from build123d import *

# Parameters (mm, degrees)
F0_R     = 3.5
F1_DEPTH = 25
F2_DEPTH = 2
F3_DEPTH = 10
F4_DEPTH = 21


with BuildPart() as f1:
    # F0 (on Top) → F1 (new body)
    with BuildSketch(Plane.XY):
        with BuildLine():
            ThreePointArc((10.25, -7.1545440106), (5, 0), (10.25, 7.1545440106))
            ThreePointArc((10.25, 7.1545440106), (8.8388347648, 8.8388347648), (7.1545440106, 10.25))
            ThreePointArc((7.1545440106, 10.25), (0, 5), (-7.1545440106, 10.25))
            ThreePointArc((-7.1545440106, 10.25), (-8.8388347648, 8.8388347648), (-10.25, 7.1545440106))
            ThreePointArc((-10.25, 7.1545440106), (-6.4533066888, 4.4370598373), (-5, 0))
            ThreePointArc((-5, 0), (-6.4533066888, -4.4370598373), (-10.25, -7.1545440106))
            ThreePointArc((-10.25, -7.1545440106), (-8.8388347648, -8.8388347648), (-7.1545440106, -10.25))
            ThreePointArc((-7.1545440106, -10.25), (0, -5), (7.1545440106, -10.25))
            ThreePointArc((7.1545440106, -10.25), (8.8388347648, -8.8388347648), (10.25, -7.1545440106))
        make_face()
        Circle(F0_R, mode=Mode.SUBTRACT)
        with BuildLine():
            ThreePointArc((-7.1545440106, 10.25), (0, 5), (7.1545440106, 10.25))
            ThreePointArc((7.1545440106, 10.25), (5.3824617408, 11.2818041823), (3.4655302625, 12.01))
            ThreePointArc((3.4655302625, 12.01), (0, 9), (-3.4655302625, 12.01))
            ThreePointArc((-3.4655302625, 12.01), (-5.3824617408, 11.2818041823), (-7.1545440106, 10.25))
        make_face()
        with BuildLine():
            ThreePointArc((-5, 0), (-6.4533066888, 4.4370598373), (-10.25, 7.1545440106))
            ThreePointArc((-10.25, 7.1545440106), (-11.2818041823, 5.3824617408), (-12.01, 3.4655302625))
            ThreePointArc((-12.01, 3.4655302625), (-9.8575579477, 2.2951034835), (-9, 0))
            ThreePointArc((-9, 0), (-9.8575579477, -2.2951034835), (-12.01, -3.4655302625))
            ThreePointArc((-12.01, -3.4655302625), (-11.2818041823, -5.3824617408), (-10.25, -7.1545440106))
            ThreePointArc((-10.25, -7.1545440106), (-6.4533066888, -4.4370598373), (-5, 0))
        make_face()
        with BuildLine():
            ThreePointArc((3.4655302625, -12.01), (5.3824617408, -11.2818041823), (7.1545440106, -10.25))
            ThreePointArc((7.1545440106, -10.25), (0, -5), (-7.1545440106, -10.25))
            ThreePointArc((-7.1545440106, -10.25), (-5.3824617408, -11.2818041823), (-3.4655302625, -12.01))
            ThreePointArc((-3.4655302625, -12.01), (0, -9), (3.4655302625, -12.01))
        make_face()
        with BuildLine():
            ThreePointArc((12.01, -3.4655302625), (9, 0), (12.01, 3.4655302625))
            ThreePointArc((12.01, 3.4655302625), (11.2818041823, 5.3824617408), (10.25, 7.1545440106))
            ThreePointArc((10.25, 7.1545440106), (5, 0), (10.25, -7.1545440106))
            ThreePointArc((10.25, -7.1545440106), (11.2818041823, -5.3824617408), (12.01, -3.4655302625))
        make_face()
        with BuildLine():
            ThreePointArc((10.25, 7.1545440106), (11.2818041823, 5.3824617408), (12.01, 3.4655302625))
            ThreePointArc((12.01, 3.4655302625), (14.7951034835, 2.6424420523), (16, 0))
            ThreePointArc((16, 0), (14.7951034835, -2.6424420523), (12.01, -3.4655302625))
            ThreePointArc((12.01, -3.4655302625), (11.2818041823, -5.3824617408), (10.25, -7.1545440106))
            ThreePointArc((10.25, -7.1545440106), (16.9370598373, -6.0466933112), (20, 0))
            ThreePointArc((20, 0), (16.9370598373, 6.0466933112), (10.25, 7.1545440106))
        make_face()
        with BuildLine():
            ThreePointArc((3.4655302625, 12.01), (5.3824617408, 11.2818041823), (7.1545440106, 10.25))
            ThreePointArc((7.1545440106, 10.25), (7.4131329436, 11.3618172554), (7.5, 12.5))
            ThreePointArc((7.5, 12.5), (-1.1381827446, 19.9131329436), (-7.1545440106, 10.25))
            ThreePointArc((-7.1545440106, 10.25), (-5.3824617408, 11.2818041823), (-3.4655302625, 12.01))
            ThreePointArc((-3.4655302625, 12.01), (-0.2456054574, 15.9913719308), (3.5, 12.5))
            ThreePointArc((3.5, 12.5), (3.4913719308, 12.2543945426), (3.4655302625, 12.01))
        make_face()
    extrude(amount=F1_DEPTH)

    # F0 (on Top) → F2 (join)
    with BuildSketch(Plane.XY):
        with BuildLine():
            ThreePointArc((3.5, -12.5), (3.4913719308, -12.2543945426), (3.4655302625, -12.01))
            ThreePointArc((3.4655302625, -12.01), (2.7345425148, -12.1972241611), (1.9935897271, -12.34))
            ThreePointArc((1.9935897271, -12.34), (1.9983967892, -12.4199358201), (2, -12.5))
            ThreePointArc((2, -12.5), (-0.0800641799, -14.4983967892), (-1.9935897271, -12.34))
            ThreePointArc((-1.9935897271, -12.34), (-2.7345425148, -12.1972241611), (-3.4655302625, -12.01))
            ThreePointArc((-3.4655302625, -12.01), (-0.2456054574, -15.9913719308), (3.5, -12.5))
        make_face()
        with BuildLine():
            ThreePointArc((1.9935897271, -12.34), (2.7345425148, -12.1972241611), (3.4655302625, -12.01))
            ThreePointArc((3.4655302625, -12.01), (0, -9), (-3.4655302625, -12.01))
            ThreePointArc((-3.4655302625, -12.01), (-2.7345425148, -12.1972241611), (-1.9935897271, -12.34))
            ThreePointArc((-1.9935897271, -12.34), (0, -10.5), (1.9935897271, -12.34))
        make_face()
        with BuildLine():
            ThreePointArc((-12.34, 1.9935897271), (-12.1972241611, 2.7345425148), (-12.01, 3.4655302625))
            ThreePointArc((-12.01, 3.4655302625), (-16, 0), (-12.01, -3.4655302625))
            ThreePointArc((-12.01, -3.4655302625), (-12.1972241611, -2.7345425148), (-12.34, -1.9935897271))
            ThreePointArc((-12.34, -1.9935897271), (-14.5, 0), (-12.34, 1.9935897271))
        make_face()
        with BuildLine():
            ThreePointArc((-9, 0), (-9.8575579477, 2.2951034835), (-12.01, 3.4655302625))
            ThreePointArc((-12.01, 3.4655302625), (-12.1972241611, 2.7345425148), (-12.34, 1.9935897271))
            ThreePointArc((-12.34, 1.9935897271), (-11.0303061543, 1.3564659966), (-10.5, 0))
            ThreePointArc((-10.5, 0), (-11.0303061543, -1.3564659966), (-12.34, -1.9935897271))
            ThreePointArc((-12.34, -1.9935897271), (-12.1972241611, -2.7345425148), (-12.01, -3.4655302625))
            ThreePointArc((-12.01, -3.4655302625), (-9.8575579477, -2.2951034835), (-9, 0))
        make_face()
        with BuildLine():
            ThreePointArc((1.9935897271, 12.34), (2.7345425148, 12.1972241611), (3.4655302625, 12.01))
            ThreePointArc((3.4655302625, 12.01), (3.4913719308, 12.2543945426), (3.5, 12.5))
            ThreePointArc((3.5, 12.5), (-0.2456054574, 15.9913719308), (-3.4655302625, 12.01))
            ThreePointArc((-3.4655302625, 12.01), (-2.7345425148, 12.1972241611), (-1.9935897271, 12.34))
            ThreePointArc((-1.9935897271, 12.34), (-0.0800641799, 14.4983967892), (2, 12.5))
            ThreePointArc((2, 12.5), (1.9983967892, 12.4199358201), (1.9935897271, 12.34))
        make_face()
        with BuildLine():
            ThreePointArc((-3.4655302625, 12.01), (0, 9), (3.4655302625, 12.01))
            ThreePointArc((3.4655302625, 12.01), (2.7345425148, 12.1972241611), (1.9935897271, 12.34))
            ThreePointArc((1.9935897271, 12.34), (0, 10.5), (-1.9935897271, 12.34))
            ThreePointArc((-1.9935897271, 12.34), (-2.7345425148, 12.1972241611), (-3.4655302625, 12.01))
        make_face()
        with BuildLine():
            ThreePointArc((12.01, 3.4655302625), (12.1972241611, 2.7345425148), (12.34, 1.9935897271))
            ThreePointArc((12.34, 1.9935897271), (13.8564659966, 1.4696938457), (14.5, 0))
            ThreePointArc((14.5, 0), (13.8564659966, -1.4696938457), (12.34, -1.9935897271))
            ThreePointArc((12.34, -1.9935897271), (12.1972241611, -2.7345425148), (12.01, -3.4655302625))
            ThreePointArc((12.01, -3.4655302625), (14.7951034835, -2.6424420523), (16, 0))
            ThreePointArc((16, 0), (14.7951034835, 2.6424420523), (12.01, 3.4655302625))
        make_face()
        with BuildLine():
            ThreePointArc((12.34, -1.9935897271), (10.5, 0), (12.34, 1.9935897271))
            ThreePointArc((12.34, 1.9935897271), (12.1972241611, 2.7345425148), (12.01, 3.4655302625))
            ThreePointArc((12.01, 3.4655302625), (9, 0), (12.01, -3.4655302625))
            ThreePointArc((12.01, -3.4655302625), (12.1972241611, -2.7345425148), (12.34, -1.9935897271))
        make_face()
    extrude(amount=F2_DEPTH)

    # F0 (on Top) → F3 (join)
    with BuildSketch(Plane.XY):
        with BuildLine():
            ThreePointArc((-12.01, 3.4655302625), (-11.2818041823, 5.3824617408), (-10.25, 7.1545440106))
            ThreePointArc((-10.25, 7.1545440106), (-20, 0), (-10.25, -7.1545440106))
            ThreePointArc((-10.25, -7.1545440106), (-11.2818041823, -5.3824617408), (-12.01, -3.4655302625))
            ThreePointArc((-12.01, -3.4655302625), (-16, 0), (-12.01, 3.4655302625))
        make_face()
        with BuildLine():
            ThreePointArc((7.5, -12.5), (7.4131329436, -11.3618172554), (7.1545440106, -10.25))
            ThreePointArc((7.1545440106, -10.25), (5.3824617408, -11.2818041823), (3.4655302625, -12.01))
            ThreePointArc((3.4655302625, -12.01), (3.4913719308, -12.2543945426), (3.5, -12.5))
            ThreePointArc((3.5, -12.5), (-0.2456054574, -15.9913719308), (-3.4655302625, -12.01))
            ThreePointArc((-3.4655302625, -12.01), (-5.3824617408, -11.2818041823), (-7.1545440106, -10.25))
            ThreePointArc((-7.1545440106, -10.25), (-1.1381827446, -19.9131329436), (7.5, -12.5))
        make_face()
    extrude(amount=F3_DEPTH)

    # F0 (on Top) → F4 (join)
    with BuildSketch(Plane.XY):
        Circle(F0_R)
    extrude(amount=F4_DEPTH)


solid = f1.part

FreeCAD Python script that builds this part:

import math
import FreeCAD as App
import Part
import Sketcher

V = App.Vector
Q = App.Units.Quantity

doc = App.newDocument("Part")
body = doc.addObject("PartDesign::Body", "Body")

sketch1 = doc.addObject("Sketcher::SketchObject", "Sketch")
body.addObject(sketch1)
sketch1.AttachmentSupport = (doc.XY_Plane, [""])
sketch1.MapMode = "FlatFace"
sketch1.addGeometry([
    Part.ArcOfCircle(Part.Circle(V(0, 0, 0), V(0, 0, 1), 12.5), math.radians(35), math.radians(55)),
    Part.ArcOfCircle(Part.Circle(V(0, 12.5, 0), V(0, 0, 1), 7.5), math.radians(-17.46), math.radians(0)),
    Part.ArcOfCircle(Part.Circle(V(0, 12.5, 0), V(0, 0, 1), 7.5), math.radians(0), math.radians(197)),
    Part.ArcOfCircle(Part.Circle(V(0, 0, 0), V(0, 0, 1), 12.5), math.radians(125), math.radians(145)),
    Part.ArcOfCircle(Part.Circle(V(0, 0, 0), V(0, 0, 1), 12.5), math.radians(145.08), math.radians(163.9)),
    Part.ArcOfCircle(Part.Circle(V(-12.5, 0, 0), V(0, 0, 1), 3.5), math.radians(0), math.radians(82)),
    Part.ArcOfCircle(Part.Circle(V(-12.5, 0, 0), V(0, 0, 1), 3.5), math.radians(-82), math.radians(0)),
    Part.ArcOfCircle(Part.Circle(V(0, 0, 0), V(0, 0, 1), 12.5), math.radians(-163.9), math.radians(-145.08)),
    Part.ArcOfCircle(Part.Circle(V(0, 0, 0), V(0, 0, 1), 12.5), math.radians(-145), math.radians(-125)),
    Part.ArcOfCircle(Part.Circle(V(0, 0, 0), V(0, 0, 1), 12.5), math.radians(-124.92), math.radians(-106.1)),
    Part.ArcOfCircle(Part.Circle(V(0, -12.5, 0), V(0, 0, 1), 3.5), math.radians(8), math.radians(172)),
    Part.ArcOfCircle(Part.Circle(V(0, 0, 0), V(0, 0, 1), 12.5), math.radians(-73.9), math.radians(-55.08)),
    Part.ArcOfCircle(Part.Circle(V(0, 0, 0), V(0, 0, 1), 12.5), math.radians(-55), math.radians(-35)),
    Part.ArcOfCircle(Part.Circle(V(12.5, 0, 0), V(0, 0, 1), 7.5), math.radians(-107), math.radians(0)),
    Part.ArcOfCircle(Part.Circle(V(12.5, 0, 0), V(0, 0, 1), 7.5), math.radians(0), math.radians(107)),
    Part.ArcOfCircle(Part.Circle(V(0, 12.5, 0), V(0, 0, 1), 3.5), math.radians(-172), math.radians(-8)),
    Part.ArcOfCircle(Part.Circle(V(0, 12.5, 0), V(0, 0, 1), 3.5), math.radians(0), math.radians(188)),
    Part.ArcOfCircle(Part.Circle(V(0, 12.5, 0), V(0, 0, 1), 3.5), math.radians(-8.05), math.radians(0)),
    Part.ArcOfCircle(Part.Circle(V(12.5, 0, 0), V(0, 0, 1), 3.5), math.radians(98), math.radians(262)),
    Part.ArcOfCircle(Part.Circle(V(12.5, 0, 0), V(0, 0, 1), 3.5), math.radians(0), math.radians(98)),
    Part.ArcOfCircle(Part.Circle(V(12.5, 0, 0), V(0, 0, 1), 3.5), math.radians(-98), math.radians(0)),
    Part.Circle(V(0, 0, 0), V(0, 0, 1), 3.5),
], False)
sketch1.addConstraint([
    Sketcher.Constraint("Coincident", 0, 2, 1, 1),
    Sketcher.Constraint("Tangent", 1, 2, 2, 1),
    Sketcher.Constraint("Coincident", 2, 2, 3, 1),
    Sketcher.Constraint("Tangent", 3, 2, 4, 1),
    Sketcher.Constraint("Coincident", 4, 2, 5, 2),
    Sketcher.Constraint("Tangent", 5, 1, 6, 2),
    Sketcher.Constraint("Coincident", 6, 1, 7, 1),
    Sketcher.Constraint("Tangent", 7, 2, 8, 1),
    Sketcher.Constraint("Tangent", 8, 2, 9, 1),
    Sketcher.Constraint("Coincident", 9, 2, 10, 2),
    Sketcher.Constraint("Coincident", 10, 1, 11, 1),
    Sketcher.Constraint("Tangent", 11, 2, 12, 1),
    Sketcher.Constraint("Coincident", 12, 2, 13, 1),
    Sketcher.Constraint("Tangent", 13, 2, 14, 1),
    Sketcher.Constraint("Coincident", 14, 2, 0, 1),
    Sketcher.Constraint("Tangent", 15, 1, 16, 2),
    Sketcher.Constraint("Tangent", 16, 1, 17, 2),
    Sketcher.Constraint("Tangent", 17, 1, 15, 2),
    Sketcher.Constraint("Tangent", 18, 1, 19, 2),
    Sketcher.Constraint("Tangent", 19, 1, 20, 2),
    Sketcher.Constraint("Tangent", 20, 1, 18, 2),
    Sketcher.Constraint("Coincident", 0, 3, -1, 1),
    Sketcher.Constraint("Coincident", 3, 3, -1, 1),
    Sketcher.Constraint("Coincident", 7, 3, -1, 1),
    Sketcher.Constraint("Coincident", 9, 3, -1, 1),
    Sketcher.Constraint("Coincident", 11, 3, -1, 1),
    Sketcher.Constraint("Coincident", 21, 3, -1, 1),
    Sketcher.Constraint("Coincident", 15, 3, 1, 3),
    Sketcher.Constraint("Coincident", 18, 3, 13, 3),
    Sketcher.Constraint("Equal", 1, 2),
    Sketcher.Constraint("Equal", 0, 3),
    Sketcher.Constraint("Equal", 3, 4),
    Sketcher.Constraint("Equal", 5, 6),
    Sketcher.Constraint("Equal", 4, 7),
    Sketcher.Constraint("Equal", 6, 10),
    Sketcher.Constraint("Equal", 9, 11),
    Sketcher.Constraint("Equal", 11, 12),
    Sketcher.Constraint("Equal", 2, 13),
    Sketcher.Constraint("Equal", 13, 14),
    Sketcher.Constraint("Equal", 10, 15),
    Sketcher.Constraint("Equal", 17, 18),
    Sketcher.Constraint("Equal", 20, 21),
    Sketcher.Constraint("Symmetric", 1, 3, 10, 3, -1, 1),
    Sketcher.Constraint("Symmetric", 5, 3, 13, 3, -1, 1),
    Sketcher.Constraint("Symmetric", 15, 1, 17, 1, -2),
    Sketcher.Constraint("Symmetric", 4, 2, 18, 1, -2),
    Sketcher.Constraint("PointOnObject", 5, 1, -1),
    Sketcher.Constraint("PointOnObject", 13, 2, -1),
    Sketcher.Constraint("PointOnObject", 19, 1, -1),
    Sketcher.Constraint("Horizontal", 17, 3, 1, 2),
    Sketcher.Constraint("Horizontal", 8, 2, 11, 2),
    Sketcher.Constraint("Horizontal", 7, 2, 12, 2),
    Sketcher.Constraint("Horizontal", 3, 2, 14, 2),
    Sketcher.Constraint("Horizontal", 1, 2, 16, 1),
    Sketcher.Constraint("Horizontal", 6, 1, 20, 1),
    Sketcher.Constraint("Vertical", 2, 2, 8, 2),
    Sketcher.Constraint("Vertical", 9, 2, 15, 1),
    Sketcher.Constraint("Diameter", 21, Q("7 mm")),
    Sketcher.Constraint("Radius", 0, Q("12.5 mm")),
    Sketcher.Constraint("Radius", 1, Q("7.5 mm")),
    Sketcher.Constraint("DistanceX", 5, 1, -1, 1, Q("9 mm")),
    Sketcher.Constraint("DistanceY", -1, 1, 1, 3, Q("12.5 mm")),
])
pad1 = doc.addObject("PartDesign::Pad", "Pad")
body.addObject(pad1)
pad1.Profile = sketch1
pad1.Length = 25

sketch2 = doc.addObject("Sketcher::SketchObject", "Sketch001")
body.addObject(sketch2)
sketch2.AttachmentSupport = (doc.XY_Plane, [""])
sketch2.MapMode = "FlatFace"
sketch2.addGeometry([
    Part.ArcOfCircle(Part.Circle(V(0, -12.5, 0), V(0, 0, 1), 3.5), math.radians(0), math.radians(8.05)),
    Part.ArcOfCircle(Part.Circle(V(0, -12.5, 0), V(0, 0, 1), 3.5), math.radians(8), math.radians(172)),
    Part.ArcOfCircle(Part.Circle(V(0, -12.5, 0), V(0, 0, 1), 3.5), math.radians(172), math.radians(360)),
    Part.ArcOfCircle(Part.Circle(V(0, -12.5, 0), V(0, 0, 1), 2), math.radians(0), math.radians(4.59)),
    Part.ArcOfCircle(Part.Circle(V(0, -12.5, 0), V(0, 0, 1), 2), math.radians(175), math.radians(360)),
    Part.ArcOfCircle(Part.Circle(V(0, -12.5, 0), V(0, 0, 1), 2), math.radians(5), math.radians(175)),
    Part.ArcOfCircle(Part.Circle(V(-12.5, 0, 0), V(0, 0, 1), 3.5), math.radians(82), math.radians(278)),
    Part.ArcOfCircle(Part.Circle(V(-12.5, 0, 0), V(0, 0, 1), 3.5), math.radians(-82), math.radians(0)),
    Part.ArcOfCircle(Part.Circle(V(-12.5, 0, 0), V(0, 0, 1), 3.5), math.radians(0), math.radians(82)),
    Part.ArcOfCircle(Part.Circle(V(-12.5, 0, 0), V(0, 0, 1), 2), math.radians(85), math.radians(275)),
    Part.ArcOfCircle(Part.Circle(V(-12.5, 0, 0), V(0, 0, 1), 2), math.radians(0), math.radians(85)),
    Part.ArcOfCircle(Part.Circle(V(-12.5, 0, 0), V(0, 0, 1), 2), math.radians(-85), math.radians(0)),
    Part.ArcOfCircle(Part.Circle(V(0, 12.5, 0), V(0, 0, 1), 3.5), math.radians(-8.05), math.radians(0)),
    Part.ArcOfCircle(Part.Circle(V(0, 12.5, 0), V(0, 0, 1), 3.5), math.radians(0), math.radians(188)),
    Part.ArcOfCircle(Part.Circle(V(0, 12.5, 0), V(0, 0, 1), 3.5), math.radians(-172), math.radians(-8)),
    Part.ArcOfCircle(Part.Circle(V(0, 12.5, 0), V(0, 0, 1), 2), math.radians(0), math.radians(185)),
    Part.ArcOfCircle(Part.Circle(V(0, 12.5, 0), V(0, 0, 1), 2), math.radians(-4.59), math.radians(0)),
    Part.ArcOfCircle(Part.Circle(V(0, 12.5, 0), V(0, 0, 1), 2), math.radians(-175), math.radians(-5)),
    Part.ArcOfCircle(Part.Circle(V(12.5, 0, 0), V(0, 0, 1), 3.5), math.radians(-98), math.radians(0)),
    Part.ArcOfCircle(Part.Circle(V(12.5, 0, 0), V(0, 0, 1), 3.5), math.radians(0), math.radians(98)),
    Part.ArcOfCircle(Part.Circle(V(12.5, 0, 0), V(0, 0, 1), 3.5), math.radians(98), math.radians(262)),
    Part.ArcOfCircle(Part.Circle(V(12.5, 0, 0), V(0, 0, 1), 2), math.radians(0), math.radians(95)),
    Part.ArcOfCircle(Part.Circle(V(12.5, 0, 0), V(0, 0, 1), 2), math.radians(-95), math.radians(0)),
    Part.ArcOfCircle(Part.Circle(V(12.5, 0, 0), V(0, 0, 1), 2), math.radians(95), math.radians(265)),
], False)
sketch2.addConstraint([
    Sketcher.Constraint("Tangent", 0, 2, 1, 1),
    Sketcher.Constraint("Tangent", 1, 2, 2, 1),
    Sketcher.Constraint("Tangent", 2, 2, 0, 1),
    Sketcher.Constraint("Tangent", 3, 1, 4, 2),
    Sketcher.Constraint("Tangent", 4, 1, 5, 2),
    Sketcher.Constraint("Tangent", 5, 1, 3, 2),
    Sketcher.Constraint("Tangent", 6, 2, 7, 1),
    Sketcher.Constraint("Tangent", 7, 2, 8, 1),
    Sketcher.Constraint("Tangent", 8, 2, 6, 1),
    Sketcher.Constraint("Tangent", 9, 1, 10, 2),
    Sketcher.Constraint("Tangent", 10, 1, 11, 2),
    Sketcher.Constraint("Tangent", 11, 1, 9, 2),
    Sketcher.Constraint("Tangent", 12, 2, 13, 1),
    Sketcher.Constraint("Tangent", 13, 2, 14, 1),
    Sketcher.Constraint("Tangent", 14, 2, 12, 1),
    Sketcher.Constraint("Tangent", 15, 1, 16, 2),
    Sketcher.Constraint("Tangent", 16, 1, 17, 2),
    Sketcher.Constraint("Tangent", 17, 1, 15, 2),
    Sketcher.Constraint("Tangent", 18, 2, 19, 1),
    Sketcher.Constraint("Tangent", 19, 2, 20, 1),
    Sketcher.Constraint("Tangent", 20, 2, 18, 1),
    Sketcher.Constraint("Tangent", 21, 1, 22, 2),
    Sketcher.Constraint("Tangent", 22, 1, 23, 2),
    Sketcher.Constraint("Tangent", 23, 1, 21, 2),
    Sketcher.Constraint("Coincident", 3, 3, 0, 3),
    Sketcher.Constraint("Coincident", 9, 3, 6, 3),
    Sketcher.Constraint("Coincident", 15, 3, 12, 3),
    Sketcher.Constraint("Coincident", 21, 3, 18, 3),
    Sketcher.Constraint("Equal", 2, 6),
    Sketcher.Constraint("Equal", 5, 9),
    Sketcher.Constraint("Equal", 8, 12),
    Sketcher.Constraint("Equal", 11, 15),
    Sketcher.Constraint("Equal", 14, 18),
    Sketcher.Constraint("Equal", 17, 21),
    Sketcher.Constraint("Symmetric", 0, 3, 12, 3, -1, 1),
    Sketcher.Constraint("Symmetric", 6, 3, 18, 3, -1, 1),
    Sketcher.Constraint("Symmetric", 0, 2, 1, 2, -2),
    Sketcher.Constraint("Symmetric", 8, 2, 19, 2, -2),
    Sketcher.Constraint("PointOnObject", 7, 2, -1),
    Sketcher.Constraint("PointOnObject", 10, 1, -1),
    Sketcher.Constraint("PointOnObject", 18, 2, -1),
    Sketcher.Constraint("PointOnObject", 21, 1, -1),
    Sketcher.Constraint("Horizontal", 5, 3, 2, 2),
    Sketcher.Constraint("Horizontal", 2, 2, 3, 1),
    Sketcher.Constraint("Horizontal", 4, 1, 5, 1),
    Sketcher.Constraint("Horizontal", 17, 3, 12, 2),
    Sketcher.Constraint("Horizontal", 13, 2, 14, 2),
    Sketcher.Constraint("Horizontal", 12, 2, 15, 1),
    Sketcher.Constraint("Horizontal", 16, 1, 17, 1),
    Sketcher.Constraint("Horizontal", 6, 2, 20, 2),
    Sketcher.Constraint("Horizontal", 11, 1, 22, 1),
    Sketcher.Constraint("Horizontal", 9, 1, 23, 1),
    Sketcher.Constraint("Vertical", 6, 2, 8, 2),
    Sketcher.Constraint("Vertical", 9, 1, 11, 1),
    Sketcher.Constraint("Vertical", 1, 2, 13, 2),
    Sketcher.Constraint("Vertical", 5, 1, 16, 1),
    Sketcher.Constraint("Radius", 3, Q("2 mm")),
    Sketcher.Constraint("Radius", 0, Q("3.5 mm")),
    Sketcher.Constraint("DistanceX", 7, 2, -1, 1, Q("9 mm")),
    Sketcher.Constraint("DistanceY", 0, 3, -1, 1, Q("12.5 mm")),
    Sketcher.Constraint("DistanceY", 0, 2, -1, 1, Q("12.01 mm")),
    Sketcher.Constraint("DistanceY", 4, 1, -1, 1, Q("12.34 mm")),
    Sketcher.Constraint("DistanceX", 6, 2, -1, 1, Q("12.01 mm")),
    Sketcher.Constraint("DistanceX", 9, 1, -1, 1, Q("12.34 mm")),
])
pad2 = doc.addObject("PartDesign::Pad", "Pad001")
body.addObject(pad2)
pad2.Profile = sketch2
pad2.Length = 2

sketch3 = doc.addObject("Sketcher::SketchObject", "Sketch002")
body.addObject(sketch3)
sketch3.AttachmentSupport = (doc.XY_Plane, [""])
sketch3.MapMode = "FlatFace"
sketch3.addGeometry([
    Part.ArcOfCircle(Part.Circle(V(0, 0, 0), V(0, 0, 1), 12.5), math.radians(145.08), math.radians(163.9)),
    Part.ArcOfCircle(Part.Circle(V(-12.5, 0, 0), V(0, 0, 1), 7.5), math.radians(73), math.radians(287)),
    Part.ArcOfCircle(Part.Circle(V(0, 0, 0), V(0, 0, 1), 12.5), math.radians(-163.9), math.radians(-145.08)),
    Part.ArcOfCircle(Part.Circle(V(-12.5, 0, 0), V(0, 0, 1), 3.5), math.radians(82), math.radians(278)),
    Part.ArcOfCircle(Part.Circle(V(0, -12.5, 0), V(0, 0, 1), 7.5), math.radians(0), math.radians(17.46)),
    Part.ArcOfCircle(Part.Circle(V(0, 0, 0), V(0, 0, 1), 12.5), math.radians(-73.9), math.radians(-55.08)),
    Part.ArcOfCircle(Part.Circle(V(0, -12.5, 0), V(0, 0, 1), 3.5), math.radians(0), math.radians(8.05)),
    Part.ArcOfCircle(Part.Circle(V(0, -12.5, 0), V(0, 0, 1), 3.5), math.radians(172), math.radians(360)),
    Part.ArcOfCircle(Part.Circle(V(0, 0, 0), V(0, 0, 1), 12.5), math.radians(-124.92), math.radians(-106.1)),
    Part.ArcOfCircle(Part.Circle(V(0, -12.5, 0), V(0, 0, 1), 7.5), math.radians(163), math.radians(360)),
], False)
sketch3.addConstraint([
    Sketcher.Constraint("Coincident", 0, 1, 1, 1),
    Sketcher.Constraint("Coincident", 1, 2, 2, 2),
    Sketcher.Constraint("Coincident", 2, 1, 3, 2),
    Sketcher.Constraint("Coincident", 3, 1, 0, 2),
    Sketcher.Constraint("Coincident", 4, 2, 5, 2),
    Sketcher.Constraint("Coincident", 5, 1, 6, 2),
    Sketcher.Constraint("Tangent", 6, 1, 7, 2),
    Sketcher.Constraint("Coincident", 7, 1, 8, 2),
    Sketcher.Constraint("Coincident", 8, 1, 9, 1),
    Sketcher.Constraint("Tangent", 9, 2, 4, 1),
    Sketcher.Constraint("Coincident", 0, 3, -1, 1),
    Sketcher.Constraint("Coincident", 2, 3, -1, 1),
    Sketcher.Constraint("Coincident", 5, 3, -1, 1),
    Sketcher.Constraint("Coincident", 8, 3, -1, 1),
    Sketcher.Constraint("Coincident", 3, 3, 1, 3),
    Sketcher.Constraint("Coincident", 6, 3, 4, 3),
    Sketcher.Constraint("Equal", 0, 2),
    Sketcher.Constraint("Equal", 1, 4),
    Sketcher.Constraint("Equal", 2, 5),
    Sketcher.Constraint("Equal", 3, 6),
    Sketcher.Constraint("Equal", 6, 7),
    Sketcher.Constraint("Equal", 5, 8),
    Sketcher.Constraint("Equal", 4, 9),
    Sketcher.Constraint("PointOnObject", 1, 3, -1),
    Sketcher.Constraint("PointOnObject", 4, 3, -2),
    Sketcher.Constraint("Horizontal", 9, 3, 6, 1),
    Sketcher.Constraint("Horizontal", 6, 1, 9, 2),
    Sketcher.Constraint("Radius", 0, Q("12.5 mm")),
    Sketcher.Constraint("Radius", 1, Q("7.5 mm")),
    Sketcher.Constraint("Radius", 3, Q("3.5 mm")),
    Sketcher.Constraint("DistanceX", 1, 3, -1, 1, Q("12.5 mm")),
    Sketcher.Constraint("DistanceY", 4, 3, -1, 1, Q("12.5 mm")),
])
pad3 = doc.addObject("PartDesign::Pad", "Pad002")
body.addObject(pad3)
pad3.Profile = sketch3
pad3.Length = 10

sketch4 = doc.addObject("Sketcher::SketchObject", "Sketch003")
body.addObject(sketch4)
sketch4.AttachmentSupport = (doc.XY_Plane, [""])
sketch4.MapMode = "FlatFace"
sketch4.addGeometry(Part.Circle(V(0, 0, 0), V(0, 0, 1), 3.5), False)
sketch4.addConstraint([
    Sketcher.Constraint("Coincident", 0, 3, -1, 1),
    Sketcher.Constraint("Diameter", 0, Q("7 mm")),
])
pad4 = doc.addObject("PartDesign::Pad", "Pad003")
body.addObject(pad4)
pad4.Profile = sketch4
pad4.Length = 21

doc.recompute()
